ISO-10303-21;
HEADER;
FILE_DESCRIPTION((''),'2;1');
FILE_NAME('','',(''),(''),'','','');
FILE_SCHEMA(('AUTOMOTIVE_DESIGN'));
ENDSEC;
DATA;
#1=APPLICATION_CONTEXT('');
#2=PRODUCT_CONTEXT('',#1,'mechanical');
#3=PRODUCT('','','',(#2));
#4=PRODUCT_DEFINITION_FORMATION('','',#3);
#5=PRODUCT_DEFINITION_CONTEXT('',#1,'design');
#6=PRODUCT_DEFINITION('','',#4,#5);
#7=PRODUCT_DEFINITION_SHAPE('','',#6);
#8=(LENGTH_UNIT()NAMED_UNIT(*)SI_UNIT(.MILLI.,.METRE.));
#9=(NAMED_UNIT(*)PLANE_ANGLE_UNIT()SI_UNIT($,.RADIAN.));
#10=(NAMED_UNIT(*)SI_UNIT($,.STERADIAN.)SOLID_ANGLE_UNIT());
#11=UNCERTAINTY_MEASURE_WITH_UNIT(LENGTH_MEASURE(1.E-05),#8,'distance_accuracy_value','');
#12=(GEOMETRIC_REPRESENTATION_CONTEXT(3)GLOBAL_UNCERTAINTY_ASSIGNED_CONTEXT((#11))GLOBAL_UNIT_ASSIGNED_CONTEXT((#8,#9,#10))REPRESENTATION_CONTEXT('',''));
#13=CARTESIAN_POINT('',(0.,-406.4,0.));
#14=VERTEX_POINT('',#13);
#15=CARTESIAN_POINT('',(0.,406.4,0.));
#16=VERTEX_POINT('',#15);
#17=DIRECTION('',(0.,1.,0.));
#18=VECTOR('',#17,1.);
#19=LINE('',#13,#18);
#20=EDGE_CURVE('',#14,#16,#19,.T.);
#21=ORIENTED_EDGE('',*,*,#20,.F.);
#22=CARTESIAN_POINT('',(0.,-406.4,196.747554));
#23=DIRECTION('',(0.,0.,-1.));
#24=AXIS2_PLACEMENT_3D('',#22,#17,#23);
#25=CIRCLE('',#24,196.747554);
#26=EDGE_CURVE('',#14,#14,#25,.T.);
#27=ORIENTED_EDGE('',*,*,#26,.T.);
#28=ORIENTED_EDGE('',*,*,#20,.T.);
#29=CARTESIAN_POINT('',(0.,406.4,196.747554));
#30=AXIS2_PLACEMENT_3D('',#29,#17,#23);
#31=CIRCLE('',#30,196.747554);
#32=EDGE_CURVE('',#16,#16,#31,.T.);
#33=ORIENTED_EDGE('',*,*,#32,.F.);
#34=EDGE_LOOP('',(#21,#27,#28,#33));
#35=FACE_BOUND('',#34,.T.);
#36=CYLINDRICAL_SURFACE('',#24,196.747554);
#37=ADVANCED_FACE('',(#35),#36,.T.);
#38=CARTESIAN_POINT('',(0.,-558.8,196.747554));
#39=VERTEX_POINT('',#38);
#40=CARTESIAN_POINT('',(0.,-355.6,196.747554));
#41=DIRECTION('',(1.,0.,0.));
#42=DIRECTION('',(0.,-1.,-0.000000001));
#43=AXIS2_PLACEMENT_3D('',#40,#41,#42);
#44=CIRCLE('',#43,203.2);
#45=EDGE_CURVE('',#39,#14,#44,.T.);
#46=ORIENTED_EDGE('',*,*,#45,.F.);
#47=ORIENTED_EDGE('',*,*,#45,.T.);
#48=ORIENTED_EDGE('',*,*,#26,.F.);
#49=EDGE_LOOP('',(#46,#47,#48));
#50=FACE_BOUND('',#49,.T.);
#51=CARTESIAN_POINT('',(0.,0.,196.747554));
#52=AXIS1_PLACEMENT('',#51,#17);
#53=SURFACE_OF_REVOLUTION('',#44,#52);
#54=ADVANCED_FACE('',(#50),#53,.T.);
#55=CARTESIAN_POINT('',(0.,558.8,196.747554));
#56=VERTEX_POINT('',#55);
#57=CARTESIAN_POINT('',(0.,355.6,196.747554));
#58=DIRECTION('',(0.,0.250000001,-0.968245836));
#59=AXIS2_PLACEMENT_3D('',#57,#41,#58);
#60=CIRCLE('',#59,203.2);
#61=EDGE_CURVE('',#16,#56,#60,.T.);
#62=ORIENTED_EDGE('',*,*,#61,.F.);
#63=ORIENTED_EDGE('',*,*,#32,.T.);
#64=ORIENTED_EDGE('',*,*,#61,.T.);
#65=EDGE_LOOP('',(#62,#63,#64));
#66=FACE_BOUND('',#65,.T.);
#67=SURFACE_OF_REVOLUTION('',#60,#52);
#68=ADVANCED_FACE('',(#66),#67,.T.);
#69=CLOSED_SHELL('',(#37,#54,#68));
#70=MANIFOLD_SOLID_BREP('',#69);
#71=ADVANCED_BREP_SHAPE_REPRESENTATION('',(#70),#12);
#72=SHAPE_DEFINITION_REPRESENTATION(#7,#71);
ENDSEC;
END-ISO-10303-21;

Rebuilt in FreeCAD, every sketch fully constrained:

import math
import FreeCAD as App
import Part
import Sketcher

V = App.Vector
Q = App.Units.Quantity

doc = App.newDocument("Part")
body = doc.addObject("PartDesign::Body", "Body")

sketch1 = doc.addObject("Sketcher::SketchObject", "Sketch")
body.addObject(sketch1)
sketch1.AttachmentSupport = (doc.YZ_Plane, [""])
sketch1.MapMode = "FlatFace"
sketch1.addGeometry([
    Part.ArcOfCircle(Part.Circle(V(-355.6, 196.747554, 0), V(0, 0, 1), 203.2), math.radians(-180), math.radians(-104.477512)),
    Part.LineSegment(V(-406.4, 0, 0), V(406.4, 0, 0)),
    Part.ArcOfCircle(Part.Circle(V(355.6, 196.747554, 0), V(0, 0, 1), 203.2), math.radians(-75.522488), math.radians(0)),
    Part.LineSegment(V(558.8, 196.747554, 0), V(-558.8, 196.747554, 0)),
], False)
sketch1.addGeometry(Part.LineSegment(V(-558.8, 196.747554, 0), V(558.8, 196.747554, 0)), True)
sketch1.addConstraint([
    Sketcher.Constraint("Coincident", 0, 2, 1, 1),
    Sketcher.Constraint("Coincident", 1, 2, 2, 1),
    Sketcher.Constraint("Coincident", 2, 2, 3, 1),
    Sketcher.Constraint("Coincident", 3, 2, 0, 1),
    Sketcher.Constraint("Horizontal", 1),
    Sketcher.Constraint("Horizontal", 3),
    Sketcher.Constraint("Horizontal", 4),
    Sketcher.Constraint("Coincident", 4, 1, 3, 2),
    Sketcher.Constraint("Equal", 0, 2),
    Sketcher.Constraint("Symmetric", 0, 2, 1, 2, -1, 1),
    Sketcher.Constraint("Horizontal", 0, 3, 2, 3),
    Sketcher.Constraint("Horizontal", 0, 3, 2, 2),
    Sketcher.Constraint("Equal", 3, 4),
    Sketcher.Constraint("Radius", 0, Q("8 in")),
    Sketcher.Constraint("DistanceX", 1, 1, 1, 2, Q("32 in")),
    Sketcher.Constraint("DistanceX", 3, 2, 3, 1, Q("44 in")),
])
revolution = doc.addObject("PartDesign::Revolution", "Revolution")
body.addObject(revolution)
revolution.Profile = sketch1
revolution.ReferenceAxis = (sketch1, ["Axis0"])
revolution.Angle = 360

doc.recompute()
